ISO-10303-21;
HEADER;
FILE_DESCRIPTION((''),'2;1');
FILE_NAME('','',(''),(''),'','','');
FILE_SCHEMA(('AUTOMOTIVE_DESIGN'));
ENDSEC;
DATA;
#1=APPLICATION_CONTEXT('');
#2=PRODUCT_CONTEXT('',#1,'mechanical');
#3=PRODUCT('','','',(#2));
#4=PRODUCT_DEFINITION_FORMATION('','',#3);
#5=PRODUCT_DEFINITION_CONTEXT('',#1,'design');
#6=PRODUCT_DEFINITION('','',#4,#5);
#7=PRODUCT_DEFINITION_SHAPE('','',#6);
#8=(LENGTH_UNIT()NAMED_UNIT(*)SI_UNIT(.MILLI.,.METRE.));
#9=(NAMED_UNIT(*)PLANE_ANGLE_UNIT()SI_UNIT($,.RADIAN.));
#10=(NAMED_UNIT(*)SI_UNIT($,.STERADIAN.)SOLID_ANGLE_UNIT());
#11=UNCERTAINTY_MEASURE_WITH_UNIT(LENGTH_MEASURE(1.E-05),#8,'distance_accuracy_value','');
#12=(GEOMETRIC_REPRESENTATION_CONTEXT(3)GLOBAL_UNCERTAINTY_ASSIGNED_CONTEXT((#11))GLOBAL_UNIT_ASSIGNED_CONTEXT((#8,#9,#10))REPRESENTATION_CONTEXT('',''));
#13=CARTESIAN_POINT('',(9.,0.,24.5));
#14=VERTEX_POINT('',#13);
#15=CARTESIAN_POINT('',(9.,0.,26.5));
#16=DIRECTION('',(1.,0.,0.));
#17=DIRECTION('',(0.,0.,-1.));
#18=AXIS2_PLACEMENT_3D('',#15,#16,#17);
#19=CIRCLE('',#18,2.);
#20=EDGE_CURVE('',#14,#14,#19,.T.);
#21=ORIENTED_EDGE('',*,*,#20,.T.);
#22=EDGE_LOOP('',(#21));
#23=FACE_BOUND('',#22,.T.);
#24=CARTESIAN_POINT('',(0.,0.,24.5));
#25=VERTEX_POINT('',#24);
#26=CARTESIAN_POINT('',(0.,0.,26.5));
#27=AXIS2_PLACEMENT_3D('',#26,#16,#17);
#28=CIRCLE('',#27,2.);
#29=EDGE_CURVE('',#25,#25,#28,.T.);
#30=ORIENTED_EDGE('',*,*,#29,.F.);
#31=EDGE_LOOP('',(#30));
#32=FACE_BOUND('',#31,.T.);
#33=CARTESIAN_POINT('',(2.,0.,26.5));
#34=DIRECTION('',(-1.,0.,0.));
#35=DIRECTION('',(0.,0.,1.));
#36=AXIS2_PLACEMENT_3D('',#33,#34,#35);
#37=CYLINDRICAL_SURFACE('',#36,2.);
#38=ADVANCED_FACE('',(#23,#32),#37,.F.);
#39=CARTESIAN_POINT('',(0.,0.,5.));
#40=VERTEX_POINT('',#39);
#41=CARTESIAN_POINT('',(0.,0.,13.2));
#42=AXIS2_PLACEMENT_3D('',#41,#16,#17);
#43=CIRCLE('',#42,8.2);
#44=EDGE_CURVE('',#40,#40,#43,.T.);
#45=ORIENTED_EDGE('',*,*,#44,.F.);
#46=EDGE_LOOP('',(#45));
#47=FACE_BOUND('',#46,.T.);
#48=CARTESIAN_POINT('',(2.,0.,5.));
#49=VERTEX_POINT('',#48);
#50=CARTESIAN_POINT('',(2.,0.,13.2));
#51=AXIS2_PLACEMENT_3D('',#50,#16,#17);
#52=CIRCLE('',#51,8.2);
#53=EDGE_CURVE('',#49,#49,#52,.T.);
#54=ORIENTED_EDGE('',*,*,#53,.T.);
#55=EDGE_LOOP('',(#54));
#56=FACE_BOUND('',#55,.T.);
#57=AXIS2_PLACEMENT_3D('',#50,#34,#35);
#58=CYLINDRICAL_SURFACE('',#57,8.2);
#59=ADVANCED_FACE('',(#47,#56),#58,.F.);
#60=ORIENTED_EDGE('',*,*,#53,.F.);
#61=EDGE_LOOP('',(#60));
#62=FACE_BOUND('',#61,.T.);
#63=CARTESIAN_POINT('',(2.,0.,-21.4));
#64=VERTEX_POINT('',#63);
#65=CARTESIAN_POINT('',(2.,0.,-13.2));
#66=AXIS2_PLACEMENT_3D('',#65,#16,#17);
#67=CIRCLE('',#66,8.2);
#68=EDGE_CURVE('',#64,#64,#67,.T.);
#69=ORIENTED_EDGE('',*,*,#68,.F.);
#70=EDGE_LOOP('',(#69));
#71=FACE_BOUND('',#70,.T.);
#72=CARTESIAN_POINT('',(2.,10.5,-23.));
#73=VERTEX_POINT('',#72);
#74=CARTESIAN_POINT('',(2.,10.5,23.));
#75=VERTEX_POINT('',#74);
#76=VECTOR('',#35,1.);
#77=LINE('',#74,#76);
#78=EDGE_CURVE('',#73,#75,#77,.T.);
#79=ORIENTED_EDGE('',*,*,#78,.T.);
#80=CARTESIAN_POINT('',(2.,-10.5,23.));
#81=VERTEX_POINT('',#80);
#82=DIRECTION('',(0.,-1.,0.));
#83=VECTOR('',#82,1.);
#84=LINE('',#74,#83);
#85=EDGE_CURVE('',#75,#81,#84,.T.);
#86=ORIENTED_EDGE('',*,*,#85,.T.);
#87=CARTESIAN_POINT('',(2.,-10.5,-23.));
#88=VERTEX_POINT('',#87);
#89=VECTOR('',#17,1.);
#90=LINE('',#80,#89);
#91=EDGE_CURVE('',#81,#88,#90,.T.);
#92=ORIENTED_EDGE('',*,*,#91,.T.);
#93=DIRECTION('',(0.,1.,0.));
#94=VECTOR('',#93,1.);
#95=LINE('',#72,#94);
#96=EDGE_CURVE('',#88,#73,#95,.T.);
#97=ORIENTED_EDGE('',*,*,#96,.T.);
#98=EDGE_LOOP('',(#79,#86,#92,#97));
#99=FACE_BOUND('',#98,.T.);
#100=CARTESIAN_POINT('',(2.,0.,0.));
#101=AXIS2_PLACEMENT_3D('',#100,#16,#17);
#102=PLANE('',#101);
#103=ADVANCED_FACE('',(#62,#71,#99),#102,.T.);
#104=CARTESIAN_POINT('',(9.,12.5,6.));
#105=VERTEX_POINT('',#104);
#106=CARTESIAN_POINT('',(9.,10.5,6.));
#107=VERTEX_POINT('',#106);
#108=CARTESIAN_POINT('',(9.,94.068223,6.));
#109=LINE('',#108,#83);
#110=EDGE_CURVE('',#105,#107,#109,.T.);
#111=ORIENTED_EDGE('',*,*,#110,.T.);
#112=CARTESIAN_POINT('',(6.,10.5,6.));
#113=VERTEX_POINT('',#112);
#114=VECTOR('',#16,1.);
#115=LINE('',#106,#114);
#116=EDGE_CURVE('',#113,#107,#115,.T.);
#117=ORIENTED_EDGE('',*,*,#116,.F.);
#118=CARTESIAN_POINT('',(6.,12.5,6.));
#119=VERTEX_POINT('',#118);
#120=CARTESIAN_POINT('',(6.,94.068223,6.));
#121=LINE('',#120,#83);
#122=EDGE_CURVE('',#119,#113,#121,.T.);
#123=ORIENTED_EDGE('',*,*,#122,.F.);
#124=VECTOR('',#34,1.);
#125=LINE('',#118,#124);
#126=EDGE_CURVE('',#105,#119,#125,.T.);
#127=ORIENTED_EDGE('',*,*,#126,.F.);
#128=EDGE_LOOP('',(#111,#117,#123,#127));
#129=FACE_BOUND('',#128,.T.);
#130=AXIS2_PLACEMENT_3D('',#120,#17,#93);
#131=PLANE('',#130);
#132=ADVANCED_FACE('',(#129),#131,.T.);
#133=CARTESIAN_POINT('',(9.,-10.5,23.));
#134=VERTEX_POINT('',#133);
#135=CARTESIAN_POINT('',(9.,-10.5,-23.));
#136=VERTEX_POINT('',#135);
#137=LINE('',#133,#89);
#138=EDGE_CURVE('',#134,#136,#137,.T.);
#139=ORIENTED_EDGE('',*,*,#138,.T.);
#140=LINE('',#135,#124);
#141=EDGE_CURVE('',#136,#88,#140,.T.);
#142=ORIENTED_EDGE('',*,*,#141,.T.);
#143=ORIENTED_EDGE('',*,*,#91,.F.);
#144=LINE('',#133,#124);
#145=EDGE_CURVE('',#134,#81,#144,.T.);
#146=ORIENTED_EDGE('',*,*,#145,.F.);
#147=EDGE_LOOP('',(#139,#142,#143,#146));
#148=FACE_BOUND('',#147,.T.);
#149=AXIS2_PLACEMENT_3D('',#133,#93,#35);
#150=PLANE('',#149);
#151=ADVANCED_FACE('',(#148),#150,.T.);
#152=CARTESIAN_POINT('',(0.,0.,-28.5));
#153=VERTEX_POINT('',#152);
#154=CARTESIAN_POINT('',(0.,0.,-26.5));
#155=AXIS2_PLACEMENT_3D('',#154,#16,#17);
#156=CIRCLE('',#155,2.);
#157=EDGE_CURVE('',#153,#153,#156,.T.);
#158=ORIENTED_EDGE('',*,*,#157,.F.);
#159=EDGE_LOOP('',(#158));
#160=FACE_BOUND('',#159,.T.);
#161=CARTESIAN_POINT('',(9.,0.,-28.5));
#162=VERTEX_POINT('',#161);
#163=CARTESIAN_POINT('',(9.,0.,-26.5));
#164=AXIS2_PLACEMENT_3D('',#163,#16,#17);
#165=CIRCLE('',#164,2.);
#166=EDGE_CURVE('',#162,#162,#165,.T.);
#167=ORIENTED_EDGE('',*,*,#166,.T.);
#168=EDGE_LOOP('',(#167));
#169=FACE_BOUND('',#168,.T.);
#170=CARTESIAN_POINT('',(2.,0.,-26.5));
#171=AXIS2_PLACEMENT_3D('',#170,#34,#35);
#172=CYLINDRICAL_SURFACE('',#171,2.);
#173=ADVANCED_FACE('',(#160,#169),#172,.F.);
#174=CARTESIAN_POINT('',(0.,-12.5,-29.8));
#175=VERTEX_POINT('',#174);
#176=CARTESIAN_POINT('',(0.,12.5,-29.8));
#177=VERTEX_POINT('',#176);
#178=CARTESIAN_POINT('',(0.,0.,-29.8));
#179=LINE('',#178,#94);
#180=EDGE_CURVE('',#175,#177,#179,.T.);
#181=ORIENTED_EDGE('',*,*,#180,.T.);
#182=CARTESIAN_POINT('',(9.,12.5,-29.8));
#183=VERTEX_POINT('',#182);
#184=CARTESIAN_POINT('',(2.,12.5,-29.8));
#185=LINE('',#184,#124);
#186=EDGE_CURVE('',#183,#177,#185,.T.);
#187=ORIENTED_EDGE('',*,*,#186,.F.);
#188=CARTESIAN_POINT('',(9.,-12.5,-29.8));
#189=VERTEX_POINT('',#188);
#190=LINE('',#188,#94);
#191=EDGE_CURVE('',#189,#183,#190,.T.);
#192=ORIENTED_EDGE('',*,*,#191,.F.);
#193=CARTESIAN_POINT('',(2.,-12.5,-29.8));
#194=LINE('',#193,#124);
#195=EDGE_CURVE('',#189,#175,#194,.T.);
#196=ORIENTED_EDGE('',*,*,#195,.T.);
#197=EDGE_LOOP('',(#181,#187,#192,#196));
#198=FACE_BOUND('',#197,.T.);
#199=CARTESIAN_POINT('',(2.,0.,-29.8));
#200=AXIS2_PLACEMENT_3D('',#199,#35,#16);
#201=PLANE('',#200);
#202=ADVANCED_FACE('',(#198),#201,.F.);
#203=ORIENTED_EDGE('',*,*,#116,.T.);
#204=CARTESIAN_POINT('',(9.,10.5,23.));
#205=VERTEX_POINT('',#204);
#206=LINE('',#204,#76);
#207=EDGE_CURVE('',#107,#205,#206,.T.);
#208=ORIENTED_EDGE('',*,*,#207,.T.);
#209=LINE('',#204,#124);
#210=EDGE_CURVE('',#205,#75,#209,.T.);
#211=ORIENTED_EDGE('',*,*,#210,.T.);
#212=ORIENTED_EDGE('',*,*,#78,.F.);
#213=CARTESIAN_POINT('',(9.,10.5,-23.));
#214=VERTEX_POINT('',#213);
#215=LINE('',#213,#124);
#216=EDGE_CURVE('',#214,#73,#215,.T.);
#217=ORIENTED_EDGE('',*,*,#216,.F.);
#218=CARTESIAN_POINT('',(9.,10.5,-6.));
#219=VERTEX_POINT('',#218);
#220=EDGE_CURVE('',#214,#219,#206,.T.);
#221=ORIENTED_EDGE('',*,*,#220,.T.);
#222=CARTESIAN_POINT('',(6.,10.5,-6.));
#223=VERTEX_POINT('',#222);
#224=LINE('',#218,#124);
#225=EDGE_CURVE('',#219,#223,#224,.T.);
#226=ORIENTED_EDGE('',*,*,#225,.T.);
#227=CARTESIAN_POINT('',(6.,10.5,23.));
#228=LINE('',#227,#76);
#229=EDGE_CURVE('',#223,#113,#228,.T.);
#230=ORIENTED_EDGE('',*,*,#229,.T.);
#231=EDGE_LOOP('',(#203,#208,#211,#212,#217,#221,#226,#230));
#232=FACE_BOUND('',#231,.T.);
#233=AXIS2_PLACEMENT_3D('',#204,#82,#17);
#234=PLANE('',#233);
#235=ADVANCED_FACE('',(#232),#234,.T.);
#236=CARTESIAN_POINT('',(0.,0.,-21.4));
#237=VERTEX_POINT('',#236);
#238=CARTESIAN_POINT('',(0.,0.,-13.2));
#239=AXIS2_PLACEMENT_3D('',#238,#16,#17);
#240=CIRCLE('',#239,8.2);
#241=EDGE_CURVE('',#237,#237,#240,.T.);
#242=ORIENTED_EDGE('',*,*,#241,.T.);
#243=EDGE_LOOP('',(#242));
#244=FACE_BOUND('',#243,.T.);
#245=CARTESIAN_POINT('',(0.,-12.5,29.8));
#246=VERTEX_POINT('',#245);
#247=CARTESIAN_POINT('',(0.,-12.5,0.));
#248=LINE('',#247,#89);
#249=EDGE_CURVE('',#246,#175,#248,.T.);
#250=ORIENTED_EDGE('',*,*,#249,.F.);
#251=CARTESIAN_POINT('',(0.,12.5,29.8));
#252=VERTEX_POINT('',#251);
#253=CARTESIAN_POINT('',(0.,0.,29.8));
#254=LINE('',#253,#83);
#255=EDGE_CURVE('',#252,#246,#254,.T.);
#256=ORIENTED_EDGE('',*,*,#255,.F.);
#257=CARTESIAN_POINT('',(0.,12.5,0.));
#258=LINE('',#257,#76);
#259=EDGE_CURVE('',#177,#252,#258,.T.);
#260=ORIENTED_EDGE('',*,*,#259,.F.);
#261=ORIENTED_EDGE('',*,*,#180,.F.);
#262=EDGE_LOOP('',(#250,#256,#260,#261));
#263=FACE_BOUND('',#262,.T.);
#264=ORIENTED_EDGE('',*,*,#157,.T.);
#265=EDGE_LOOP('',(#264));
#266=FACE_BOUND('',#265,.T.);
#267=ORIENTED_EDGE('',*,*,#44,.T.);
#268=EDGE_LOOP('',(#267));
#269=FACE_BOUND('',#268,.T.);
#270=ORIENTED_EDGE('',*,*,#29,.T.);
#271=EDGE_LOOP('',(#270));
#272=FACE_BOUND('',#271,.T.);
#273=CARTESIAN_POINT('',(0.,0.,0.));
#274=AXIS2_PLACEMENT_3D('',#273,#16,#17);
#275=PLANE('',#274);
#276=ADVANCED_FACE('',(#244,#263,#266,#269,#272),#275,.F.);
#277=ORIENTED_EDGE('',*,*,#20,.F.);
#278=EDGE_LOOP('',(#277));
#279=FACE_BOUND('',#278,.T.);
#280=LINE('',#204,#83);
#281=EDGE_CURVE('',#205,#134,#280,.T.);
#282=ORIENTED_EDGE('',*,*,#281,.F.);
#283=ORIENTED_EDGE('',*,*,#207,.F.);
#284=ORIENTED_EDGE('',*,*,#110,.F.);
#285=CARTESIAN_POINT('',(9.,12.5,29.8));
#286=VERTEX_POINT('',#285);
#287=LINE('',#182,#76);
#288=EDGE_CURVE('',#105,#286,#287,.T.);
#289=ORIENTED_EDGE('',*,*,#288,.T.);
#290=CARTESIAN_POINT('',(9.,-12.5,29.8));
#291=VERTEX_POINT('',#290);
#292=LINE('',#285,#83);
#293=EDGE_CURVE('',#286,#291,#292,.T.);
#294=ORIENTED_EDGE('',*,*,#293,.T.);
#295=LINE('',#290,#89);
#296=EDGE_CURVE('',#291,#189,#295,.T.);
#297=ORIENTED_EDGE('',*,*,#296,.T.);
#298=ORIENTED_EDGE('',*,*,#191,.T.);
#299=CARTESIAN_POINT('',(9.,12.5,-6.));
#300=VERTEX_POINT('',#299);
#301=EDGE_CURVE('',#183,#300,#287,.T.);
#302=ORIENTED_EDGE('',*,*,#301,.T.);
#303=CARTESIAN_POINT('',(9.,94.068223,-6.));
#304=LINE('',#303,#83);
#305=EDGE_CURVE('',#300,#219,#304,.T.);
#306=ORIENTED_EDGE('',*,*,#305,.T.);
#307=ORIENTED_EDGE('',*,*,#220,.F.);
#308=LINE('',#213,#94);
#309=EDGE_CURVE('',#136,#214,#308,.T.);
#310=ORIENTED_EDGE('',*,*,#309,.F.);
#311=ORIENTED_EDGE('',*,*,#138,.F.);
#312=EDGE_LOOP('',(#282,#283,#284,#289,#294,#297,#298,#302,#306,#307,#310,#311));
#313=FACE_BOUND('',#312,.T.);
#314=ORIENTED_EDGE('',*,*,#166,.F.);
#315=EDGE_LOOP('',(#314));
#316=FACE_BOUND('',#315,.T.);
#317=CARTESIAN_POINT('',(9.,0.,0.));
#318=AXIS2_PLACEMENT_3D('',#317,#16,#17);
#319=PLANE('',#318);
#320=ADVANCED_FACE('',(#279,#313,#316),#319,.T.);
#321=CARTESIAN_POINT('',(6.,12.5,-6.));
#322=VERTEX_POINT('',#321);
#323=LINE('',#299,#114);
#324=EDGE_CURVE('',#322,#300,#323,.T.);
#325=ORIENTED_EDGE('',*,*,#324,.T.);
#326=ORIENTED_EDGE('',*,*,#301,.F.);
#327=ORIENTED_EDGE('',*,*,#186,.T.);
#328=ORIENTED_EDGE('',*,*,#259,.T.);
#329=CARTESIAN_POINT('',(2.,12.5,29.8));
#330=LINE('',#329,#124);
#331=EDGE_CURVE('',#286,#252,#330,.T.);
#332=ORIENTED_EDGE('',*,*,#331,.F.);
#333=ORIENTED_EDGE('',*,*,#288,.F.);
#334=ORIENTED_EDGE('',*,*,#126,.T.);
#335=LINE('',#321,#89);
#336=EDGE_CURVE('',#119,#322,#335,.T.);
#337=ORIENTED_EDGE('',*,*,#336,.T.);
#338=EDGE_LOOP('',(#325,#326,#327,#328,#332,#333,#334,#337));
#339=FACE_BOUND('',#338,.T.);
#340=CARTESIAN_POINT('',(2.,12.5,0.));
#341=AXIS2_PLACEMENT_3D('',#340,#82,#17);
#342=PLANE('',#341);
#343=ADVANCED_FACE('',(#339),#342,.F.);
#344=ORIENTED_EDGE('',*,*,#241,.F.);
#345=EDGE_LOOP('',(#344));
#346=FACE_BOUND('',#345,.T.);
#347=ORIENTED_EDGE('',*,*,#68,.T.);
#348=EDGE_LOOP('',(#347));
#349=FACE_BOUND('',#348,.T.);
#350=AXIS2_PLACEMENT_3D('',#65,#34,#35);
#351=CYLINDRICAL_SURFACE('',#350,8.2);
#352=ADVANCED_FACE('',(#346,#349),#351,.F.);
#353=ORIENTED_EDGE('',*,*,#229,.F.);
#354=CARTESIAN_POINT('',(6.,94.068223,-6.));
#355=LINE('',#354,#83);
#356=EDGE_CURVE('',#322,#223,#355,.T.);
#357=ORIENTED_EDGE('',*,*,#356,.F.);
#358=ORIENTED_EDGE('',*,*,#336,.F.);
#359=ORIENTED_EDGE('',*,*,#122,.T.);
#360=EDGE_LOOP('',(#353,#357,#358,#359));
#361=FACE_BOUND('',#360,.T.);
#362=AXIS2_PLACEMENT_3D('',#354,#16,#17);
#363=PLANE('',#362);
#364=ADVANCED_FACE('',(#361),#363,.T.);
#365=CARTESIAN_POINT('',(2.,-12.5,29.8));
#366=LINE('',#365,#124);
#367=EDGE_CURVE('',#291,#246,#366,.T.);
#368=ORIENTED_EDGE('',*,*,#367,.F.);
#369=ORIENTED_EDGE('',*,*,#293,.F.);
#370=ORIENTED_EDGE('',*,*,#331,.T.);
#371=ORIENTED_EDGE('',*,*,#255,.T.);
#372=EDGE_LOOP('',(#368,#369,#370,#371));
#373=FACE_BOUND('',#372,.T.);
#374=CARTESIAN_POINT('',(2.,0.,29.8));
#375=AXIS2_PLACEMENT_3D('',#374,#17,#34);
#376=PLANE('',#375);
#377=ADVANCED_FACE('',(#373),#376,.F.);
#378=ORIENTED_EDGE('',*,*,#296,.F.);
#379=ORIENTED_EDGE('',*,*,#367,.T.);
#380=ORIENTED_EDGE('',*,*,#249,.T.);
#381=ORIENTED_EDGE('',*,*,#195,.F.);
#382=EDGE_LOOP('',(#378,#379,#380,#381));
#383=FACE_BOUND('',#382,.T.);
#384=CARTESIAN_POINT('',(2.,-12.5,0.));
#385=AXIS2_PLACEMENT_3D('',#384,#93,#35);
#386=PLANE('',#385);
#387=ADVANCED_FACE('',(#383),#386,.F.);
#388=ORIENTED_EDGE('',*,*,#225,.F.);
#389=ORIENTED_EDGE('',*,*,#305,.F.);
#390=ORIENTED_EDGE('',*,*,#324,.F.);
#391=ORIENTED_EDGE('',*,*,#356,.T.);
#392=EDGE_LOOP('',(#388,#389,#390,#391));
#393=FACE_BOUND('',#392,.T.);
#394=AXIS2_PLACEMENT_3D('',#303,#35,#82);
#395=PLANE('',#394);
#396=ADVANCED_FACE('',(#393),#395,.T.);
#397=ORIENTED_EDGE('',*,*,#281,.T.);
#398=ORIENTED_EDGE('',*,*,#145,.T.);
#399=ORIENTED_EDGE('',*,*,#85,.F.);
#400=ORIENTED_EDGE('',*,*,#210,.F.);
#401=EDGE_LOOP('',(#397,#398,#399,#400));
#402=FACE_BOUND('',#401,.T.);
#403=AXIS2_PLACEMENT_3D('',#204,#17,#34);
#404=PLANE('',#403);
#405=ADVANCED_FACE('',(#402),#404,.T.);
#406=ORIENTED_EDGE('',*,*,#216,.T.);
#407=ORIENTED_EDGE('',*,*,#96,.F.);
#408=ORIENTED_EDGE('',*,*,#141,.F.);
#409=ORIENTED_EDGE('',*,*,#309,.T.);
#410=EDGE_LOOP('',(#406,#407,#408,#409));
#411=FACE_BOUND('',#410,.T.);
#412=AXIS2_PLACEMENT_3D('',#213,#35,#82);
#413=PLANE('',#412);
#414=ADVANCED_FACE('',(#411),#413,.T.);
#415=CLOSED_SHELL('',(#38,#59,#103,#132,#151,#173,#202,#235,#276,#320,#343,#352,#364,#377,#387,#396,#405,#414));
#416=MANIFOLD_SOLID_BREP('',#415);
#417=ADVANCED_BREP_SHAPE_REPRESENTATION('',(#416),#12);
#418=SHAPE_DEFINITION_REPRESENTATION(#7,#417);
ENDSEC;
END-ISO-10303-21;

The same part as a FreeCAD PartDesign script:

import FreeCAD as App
import Part
import Sketcher
Q = App.Units.Quantity

doc = App.newDocument("Part")
body = doc.addObject("PartDesign::Body", "Body")

# Sketch on YZ plane
sketch1 = body.newObject("Sketcher::SketchObject", "Sketch")
sketch1.AttachmentSupport = (doc.getObject("YZ_Plane"), [""])
sketch1.MapMode = "FlatFace"
sketch1.addGeometry([
    Part.LineSegment(App.Vector(12.5, 29.8, 0), App.Vector(-12.5, 29.8, 0)),  # 0
    Part.LineSegment(App.Vector(-12.5, 29.8, 0), App.Vector(-12.5, -29.8, 0)),  # 1
    Part.LineSegment(App.Vector(-12.5, -29.8, 0), App.Vector(12.5, -29.8, 0)),  # 2
    Part.LineSegment(App.Vector(12.5, -29.8, 0), App.Vector(12.5, 29.8, 0)),  # 3
    Part.Circle(App.Vector(0, 26.5, 0), App.Vector(0, 0, 1), 2),  # 4
    Part.Circle(App.Vector(0, 13.2, 0), App.Vector(0, 0, 1), 8.2),  # 5
    Part.Circle(App.Vector(0, -13.2, 0), App.Vector(0, 0, 1), 8.2),  # 6
    Part.Circle(App.Vector(0, -26.5, 0), App.Vector(0, 0, 1), 2),  # 7
], False)
sketch1.addConstraint([
    Sketcher.Constraint("Coincident", 0, 2, 1, 1),
    Sketcher.Constraint("Coincident", 1, 2, 2, 1),
    Sketcher.Constraint("Coincident", 2, 2, 3, 1),
    Sketcher.Constraint("Coincident", 3, 2, 0, 1),
    Sketcher.Constraint("Horizontal", 0),
    Sketcher.Constraint("Vertical", 1),
    Sketcher.Constraint("Horizontal", 2),
    Sketcher.Constraint("Vertical", 3),
    Sketcher.Constraint("Equal", 5, 6),
    Sketcher.Constraint("Equal", 4, 7),
    Sketcher.Constraint("Symmetric", 5, 3, 6, 3, -1, 1),
    Sketcher.Constraint("Symmetric", 4, 3, 7, 3, -1, 1),
    Sketcher.Constraint("Symmetric", 0, 2, 2, 2, -1, 1),
    Sketcher.Constraint("PointOnObject", 4, 3, -2),
    Sketcher.Constraint("PointOnObject", 5, 3, -2),
    Sketcher.Constraint("Diameter", 4, Q("4 mm")),
    Sketcher.Constraint("Diameter", 5, Q("16.4 mm")),
    Sketcher.Constraint("DistanceX", 0, 2, 0, 1, Q("25 mm")),
    Sketcher.Constraint("DistanceY", 1, 2, 1, 1, Q("59.6 mm")),
    Sketcher.Constraint("DistanceY", 7, 3, 4, 3, Q("53 mm")),
    Sketcher.Constraint("DistanceY", 6, 3, 0, 2, Q("43 mm")),
])
pad1 = body.newObject("PartDesign::Pad", "Pad")
pad1.Profile = sketch1
pad1.Length = 2

# Sketch on YZ plane
sketch2 = body.newObject("Sketcher::SketchObject", "Sketch001")
sketch2.AttachmentSupport = (doc.getObject("YZ_Plane"), [""])
sketch2.MapMode = "FlatFace"
sketch2.AttachmentOffset = App.Placement(App.Vector(0, 0, 2), App.Rotation())
sketch2.addGeometry([
    Part.LineSegment(App.Vector(12.5, 29.8, 0), App.Vector(-12.5, 29.8, 0)),  # 0
    Part.LineSegment(App.Vector(-12.5, 29.8, 0), App.Vector(-12.5, -29.8, 0)),  # 1
    Part.LineSegment(App.Vector(-12.5, -29.8, 0), App.Vector(12.5, -29.8, 0)),  # 2
    Part.LineSegment(App.Vector(12.5, -29.8, 0), App.Vector(12.5, 29.8, 0)),  # 3
    Part.Circle(App.Vector(0, 26.5, 0), App.Vector(0, 0, 1), 2),  # 4
    Part.LineSegment(App.Vector(-10.5, -23, 0), App.Vector(-10.5, 23, 0)),  # 5
    Part.LineSegment(App.Vector(-10.5, 23, 0), App.Vector(10.5, 23, 0)),  # 6
    Part.LineSegment(App.Vector(10.5, 23, 0), App.Vector(10.5, -23, 0)),  # 7
    Part.LineSegment(App.Vector(10.5, -23, 0), App.Vector(-10.5, -23, 0)),  # 8
    Part.Circle(App.Vector(0, -26.5, 0), App.Vector(0, 0, 1), 2),  # 9
], False)
sketch2.addConstraint([
    Sketcher.Constraint("Coincident", 0, 2, 1, 1),
    Sketcher.Constraint("Coincident", 1, 2, 2, 1),
    Sketcher.Constraint("Coincident", 2, 2, 3, 1),
    Sketcher.Constraint("Coincident", 3, 2, 0, 1),
    Sketcher.Constraint("Coincident", 5, 2, 6, 1),
    Sketcher.Constraint("Coincident", 6, 2, 7, 1),
    Sketcher.Constraint("Coincident", 7, 2, 8, 1),
    Sketcher.Constraint("Coincident", 8, 2, 5, 1),
    Sketcher.Constraint("Horizontal", 0),
    Sketcher.Constraint("Vertical", 1),
    Sketcher.Constraint("Horizontal", 2),
    Sketcher.Constraint("Vertical", 3),
    Sketcher.Constraint("Vertical", 5),
    Sketcher.Constraint("Horizontal", 6),
    Sketcher.Constraint("Vertical", 7),
    Sketcher.Constraint("Horizontal", 8),
    Sketcher.Constraint("Equal", 4, 9),
    Sketcher.Constraint("Symmetric", 4, 3, 9, 3, -1, 1),
    Sketcher.Constraint("Symmetric", 0, 2, 2, 2, -1, 1),
    Sketcher.Constraint("Symmetric", 5, 2, 7, 2, -1, 1),
    Sketcher.Constraint("PointOnObject", 4, 3, -2),
    Sketcher.Constraint("Diameter", 4, Q("4 mm")),
    Sketcher.Constraint("DistanceX", 0, 2, 0, 1, Q("25 mm")),
    Sketcher.Constraint("DistanceX", 6, 1, 6, 2, Q("21 mm")),
    Sketcher.Constraint("DistanceY", 5, 1, 5, 2, Q("46 mm")),
    Sketcher.Constraint("DistanceY", 1, 2, 1, 1, Q("59.6 mm")),
    Sketcher.Constraint("DistanceY", 9, 3, 4, 3, Q("53 mm")),
])
pad2 = body.newObject("PartDesign::Pad", "Pad001")
pad2.Profile = sketch2
pad2.Length = 7

# Sketch on XZ plane
sketch3 = body.newObject("Sketcher::SketchObject", "Sketch002")
sketch3.AttachmentSupport = (doc.getObject("XZ_Plane"), [""])
sketch3.MapMode = "FlatFace"
sketch3.AttachmentOffset = App.Placement(App.Vector(0, 0, -12.5), App.Rotation())
sketch3.addGeometry([
    Part.LineSegment(App.Vector(6, -6, 0), App.Vector(6, 6, 0)),
    Part.LineSegment(App.Vector(6, 6, 0), App.Vector(260, 6, 0)),
    Part.LineSegment(App.Vector(260, 6, 0), App.Vector(260, -6, 0)),
    Part.LineSegment(App.Vector(260, -6, 0), App.Vector(6, -6, 0)),
], False)
sketch3.addConstraint([
    Sketcher.Constraint("Coincident", 0, 2, 1, 1),
    Sketcher.Constraint("Coincident", 1, 2, 2, 1),
    Sketcher.Constraint("Coincident", 2, 2, 3, 1),
    Sketcher.Constraint("Coincident", 3, 2, 0, 1),
    Sketcher.Constraint("Vertical", 0),
    Sketcher.Constraint("Horizontal", 1),
    Sketcher.Constraint("Vertical", 2),
    Sketcher.Constraint("Horizontal", 3),
    Sketcher.Constraint("DistanceY", 0, 1, 0, 2, Q("12 mm")),
    Sketcher.Constraint("DistanceX", -1, 1, 0, 2, Q("6 mm")),
    Sketcher.Constraint("DistanceY", -1, 1, 0, 2, Q("6 mm")),
    Sketcher.Constraint("DistanceX", 1, 1, 1, 2, Q("254.483724 mm")),
])
pocket1 = body.newObject("PartDesign::Pocket", "Pocket")
pocket1.Profile = sketch3
pocket1.Type = "TwoLengths"
pocket1.Length = 40.92543
pocket1.Length2 = 3

doc.recompute()
